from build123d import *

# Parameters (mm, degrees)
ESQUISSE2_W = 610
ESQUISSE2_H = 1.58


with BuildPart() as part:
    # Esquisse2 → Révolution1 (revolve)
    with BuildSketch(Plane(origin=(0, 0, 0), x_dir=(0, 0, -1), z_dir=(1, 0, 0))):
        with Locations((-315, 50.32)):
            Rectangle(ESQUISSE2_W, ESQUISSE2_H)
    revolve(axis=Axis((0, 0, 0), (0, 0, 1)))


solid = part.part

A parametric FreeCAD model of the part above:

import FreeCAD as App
import Part
import Sketcher

V = App.Vector


def add_polygon(sketch, points):
    """Adds a closed chain of lines whose ends are joined by coincident constraints."""
    first, n = sketch.GeometryCount, len(points)
    for a, b in zip(points, points[1:] + points[:1]):
        sketch.addGeometry(Part.LineSegment(App.Vector(*a, 0), App.Vector(*b, 0)), False)
    for i in range(n):
        sketch.addConstraint(Sketcher.Constraint("Coincident", first + i, 2, first + (i + 1) % n, 1))

doc = App.newDocument("Part")
params = doc.addObject("Spreadsheet::Sheet", "Params")
for row, (alias, value) in enumerate([
    ("sketch1_height", "610 mm"),
    ("sketch1_width", "1.58 mm"),
    ("revolution_angle", "360 deg"),
], start=1):
    params.set(f"A{row}", alias)
    params.set(f"B{row}", "=" + value)
    params.setAlias(f"B{row}", alias)

body = doc.addObject("PartDesign::Body", "Body")

# Sketch on YZ plane
sketch1 = body.newObject("Sketcher::SketchObject", "Sketch")
sketch1.AttachmentSupport = (doc.getObject("YZ_Plane"), [""])
sketch1.MapMode = "FlatFace"
add_polygon(sketch1, [(51.1, 620), (49.5, 620), (49.5, 10), (51.1, 10)])  # lines 0-3
sketch1.addConstraint(Sketcher.Constraint("Horizontal", 0))
sketch1.addConstraint(Sketcher.Constraint("Vertical", 1))
sketch1.addConstraint(Sketcher.Constraint("Horizontal", 2))
sketch1.addConstraint(Sketcher.Constraint("Vertical", 3))
sketch1.addConstraint(Sketcher.Constraint("DistanceY", 1, 2, 1, 1, 610.0))
sketch1.addConstraint(Sketcher.Constraint("DistanceY", -1, 1, 0, 2, 620.0))
sketch1.addConstraint(Sketcher.Constraint("DistanceX", 0, 2, 0, 1, 1.58))
sketch1.addConstraint(Sketcher.Constraint("DistanceX", -1, 1, 0, 2, 49.53))
sketch1.setExpression("Constraints[8]", "Params.sketch1_height")
sketch1.setExpression("Constraints[10]", "Params.sketch1_width")
revolution = body.newObject("PartDesign::Revolution", "Revolution")
revolution.Profile = sketch1
revolution.ReferenceAxis = (sketch1, ["V_Axis"])
revolution.setExpression("Angle", "Params.revolution_angle")

doc.recompute()
